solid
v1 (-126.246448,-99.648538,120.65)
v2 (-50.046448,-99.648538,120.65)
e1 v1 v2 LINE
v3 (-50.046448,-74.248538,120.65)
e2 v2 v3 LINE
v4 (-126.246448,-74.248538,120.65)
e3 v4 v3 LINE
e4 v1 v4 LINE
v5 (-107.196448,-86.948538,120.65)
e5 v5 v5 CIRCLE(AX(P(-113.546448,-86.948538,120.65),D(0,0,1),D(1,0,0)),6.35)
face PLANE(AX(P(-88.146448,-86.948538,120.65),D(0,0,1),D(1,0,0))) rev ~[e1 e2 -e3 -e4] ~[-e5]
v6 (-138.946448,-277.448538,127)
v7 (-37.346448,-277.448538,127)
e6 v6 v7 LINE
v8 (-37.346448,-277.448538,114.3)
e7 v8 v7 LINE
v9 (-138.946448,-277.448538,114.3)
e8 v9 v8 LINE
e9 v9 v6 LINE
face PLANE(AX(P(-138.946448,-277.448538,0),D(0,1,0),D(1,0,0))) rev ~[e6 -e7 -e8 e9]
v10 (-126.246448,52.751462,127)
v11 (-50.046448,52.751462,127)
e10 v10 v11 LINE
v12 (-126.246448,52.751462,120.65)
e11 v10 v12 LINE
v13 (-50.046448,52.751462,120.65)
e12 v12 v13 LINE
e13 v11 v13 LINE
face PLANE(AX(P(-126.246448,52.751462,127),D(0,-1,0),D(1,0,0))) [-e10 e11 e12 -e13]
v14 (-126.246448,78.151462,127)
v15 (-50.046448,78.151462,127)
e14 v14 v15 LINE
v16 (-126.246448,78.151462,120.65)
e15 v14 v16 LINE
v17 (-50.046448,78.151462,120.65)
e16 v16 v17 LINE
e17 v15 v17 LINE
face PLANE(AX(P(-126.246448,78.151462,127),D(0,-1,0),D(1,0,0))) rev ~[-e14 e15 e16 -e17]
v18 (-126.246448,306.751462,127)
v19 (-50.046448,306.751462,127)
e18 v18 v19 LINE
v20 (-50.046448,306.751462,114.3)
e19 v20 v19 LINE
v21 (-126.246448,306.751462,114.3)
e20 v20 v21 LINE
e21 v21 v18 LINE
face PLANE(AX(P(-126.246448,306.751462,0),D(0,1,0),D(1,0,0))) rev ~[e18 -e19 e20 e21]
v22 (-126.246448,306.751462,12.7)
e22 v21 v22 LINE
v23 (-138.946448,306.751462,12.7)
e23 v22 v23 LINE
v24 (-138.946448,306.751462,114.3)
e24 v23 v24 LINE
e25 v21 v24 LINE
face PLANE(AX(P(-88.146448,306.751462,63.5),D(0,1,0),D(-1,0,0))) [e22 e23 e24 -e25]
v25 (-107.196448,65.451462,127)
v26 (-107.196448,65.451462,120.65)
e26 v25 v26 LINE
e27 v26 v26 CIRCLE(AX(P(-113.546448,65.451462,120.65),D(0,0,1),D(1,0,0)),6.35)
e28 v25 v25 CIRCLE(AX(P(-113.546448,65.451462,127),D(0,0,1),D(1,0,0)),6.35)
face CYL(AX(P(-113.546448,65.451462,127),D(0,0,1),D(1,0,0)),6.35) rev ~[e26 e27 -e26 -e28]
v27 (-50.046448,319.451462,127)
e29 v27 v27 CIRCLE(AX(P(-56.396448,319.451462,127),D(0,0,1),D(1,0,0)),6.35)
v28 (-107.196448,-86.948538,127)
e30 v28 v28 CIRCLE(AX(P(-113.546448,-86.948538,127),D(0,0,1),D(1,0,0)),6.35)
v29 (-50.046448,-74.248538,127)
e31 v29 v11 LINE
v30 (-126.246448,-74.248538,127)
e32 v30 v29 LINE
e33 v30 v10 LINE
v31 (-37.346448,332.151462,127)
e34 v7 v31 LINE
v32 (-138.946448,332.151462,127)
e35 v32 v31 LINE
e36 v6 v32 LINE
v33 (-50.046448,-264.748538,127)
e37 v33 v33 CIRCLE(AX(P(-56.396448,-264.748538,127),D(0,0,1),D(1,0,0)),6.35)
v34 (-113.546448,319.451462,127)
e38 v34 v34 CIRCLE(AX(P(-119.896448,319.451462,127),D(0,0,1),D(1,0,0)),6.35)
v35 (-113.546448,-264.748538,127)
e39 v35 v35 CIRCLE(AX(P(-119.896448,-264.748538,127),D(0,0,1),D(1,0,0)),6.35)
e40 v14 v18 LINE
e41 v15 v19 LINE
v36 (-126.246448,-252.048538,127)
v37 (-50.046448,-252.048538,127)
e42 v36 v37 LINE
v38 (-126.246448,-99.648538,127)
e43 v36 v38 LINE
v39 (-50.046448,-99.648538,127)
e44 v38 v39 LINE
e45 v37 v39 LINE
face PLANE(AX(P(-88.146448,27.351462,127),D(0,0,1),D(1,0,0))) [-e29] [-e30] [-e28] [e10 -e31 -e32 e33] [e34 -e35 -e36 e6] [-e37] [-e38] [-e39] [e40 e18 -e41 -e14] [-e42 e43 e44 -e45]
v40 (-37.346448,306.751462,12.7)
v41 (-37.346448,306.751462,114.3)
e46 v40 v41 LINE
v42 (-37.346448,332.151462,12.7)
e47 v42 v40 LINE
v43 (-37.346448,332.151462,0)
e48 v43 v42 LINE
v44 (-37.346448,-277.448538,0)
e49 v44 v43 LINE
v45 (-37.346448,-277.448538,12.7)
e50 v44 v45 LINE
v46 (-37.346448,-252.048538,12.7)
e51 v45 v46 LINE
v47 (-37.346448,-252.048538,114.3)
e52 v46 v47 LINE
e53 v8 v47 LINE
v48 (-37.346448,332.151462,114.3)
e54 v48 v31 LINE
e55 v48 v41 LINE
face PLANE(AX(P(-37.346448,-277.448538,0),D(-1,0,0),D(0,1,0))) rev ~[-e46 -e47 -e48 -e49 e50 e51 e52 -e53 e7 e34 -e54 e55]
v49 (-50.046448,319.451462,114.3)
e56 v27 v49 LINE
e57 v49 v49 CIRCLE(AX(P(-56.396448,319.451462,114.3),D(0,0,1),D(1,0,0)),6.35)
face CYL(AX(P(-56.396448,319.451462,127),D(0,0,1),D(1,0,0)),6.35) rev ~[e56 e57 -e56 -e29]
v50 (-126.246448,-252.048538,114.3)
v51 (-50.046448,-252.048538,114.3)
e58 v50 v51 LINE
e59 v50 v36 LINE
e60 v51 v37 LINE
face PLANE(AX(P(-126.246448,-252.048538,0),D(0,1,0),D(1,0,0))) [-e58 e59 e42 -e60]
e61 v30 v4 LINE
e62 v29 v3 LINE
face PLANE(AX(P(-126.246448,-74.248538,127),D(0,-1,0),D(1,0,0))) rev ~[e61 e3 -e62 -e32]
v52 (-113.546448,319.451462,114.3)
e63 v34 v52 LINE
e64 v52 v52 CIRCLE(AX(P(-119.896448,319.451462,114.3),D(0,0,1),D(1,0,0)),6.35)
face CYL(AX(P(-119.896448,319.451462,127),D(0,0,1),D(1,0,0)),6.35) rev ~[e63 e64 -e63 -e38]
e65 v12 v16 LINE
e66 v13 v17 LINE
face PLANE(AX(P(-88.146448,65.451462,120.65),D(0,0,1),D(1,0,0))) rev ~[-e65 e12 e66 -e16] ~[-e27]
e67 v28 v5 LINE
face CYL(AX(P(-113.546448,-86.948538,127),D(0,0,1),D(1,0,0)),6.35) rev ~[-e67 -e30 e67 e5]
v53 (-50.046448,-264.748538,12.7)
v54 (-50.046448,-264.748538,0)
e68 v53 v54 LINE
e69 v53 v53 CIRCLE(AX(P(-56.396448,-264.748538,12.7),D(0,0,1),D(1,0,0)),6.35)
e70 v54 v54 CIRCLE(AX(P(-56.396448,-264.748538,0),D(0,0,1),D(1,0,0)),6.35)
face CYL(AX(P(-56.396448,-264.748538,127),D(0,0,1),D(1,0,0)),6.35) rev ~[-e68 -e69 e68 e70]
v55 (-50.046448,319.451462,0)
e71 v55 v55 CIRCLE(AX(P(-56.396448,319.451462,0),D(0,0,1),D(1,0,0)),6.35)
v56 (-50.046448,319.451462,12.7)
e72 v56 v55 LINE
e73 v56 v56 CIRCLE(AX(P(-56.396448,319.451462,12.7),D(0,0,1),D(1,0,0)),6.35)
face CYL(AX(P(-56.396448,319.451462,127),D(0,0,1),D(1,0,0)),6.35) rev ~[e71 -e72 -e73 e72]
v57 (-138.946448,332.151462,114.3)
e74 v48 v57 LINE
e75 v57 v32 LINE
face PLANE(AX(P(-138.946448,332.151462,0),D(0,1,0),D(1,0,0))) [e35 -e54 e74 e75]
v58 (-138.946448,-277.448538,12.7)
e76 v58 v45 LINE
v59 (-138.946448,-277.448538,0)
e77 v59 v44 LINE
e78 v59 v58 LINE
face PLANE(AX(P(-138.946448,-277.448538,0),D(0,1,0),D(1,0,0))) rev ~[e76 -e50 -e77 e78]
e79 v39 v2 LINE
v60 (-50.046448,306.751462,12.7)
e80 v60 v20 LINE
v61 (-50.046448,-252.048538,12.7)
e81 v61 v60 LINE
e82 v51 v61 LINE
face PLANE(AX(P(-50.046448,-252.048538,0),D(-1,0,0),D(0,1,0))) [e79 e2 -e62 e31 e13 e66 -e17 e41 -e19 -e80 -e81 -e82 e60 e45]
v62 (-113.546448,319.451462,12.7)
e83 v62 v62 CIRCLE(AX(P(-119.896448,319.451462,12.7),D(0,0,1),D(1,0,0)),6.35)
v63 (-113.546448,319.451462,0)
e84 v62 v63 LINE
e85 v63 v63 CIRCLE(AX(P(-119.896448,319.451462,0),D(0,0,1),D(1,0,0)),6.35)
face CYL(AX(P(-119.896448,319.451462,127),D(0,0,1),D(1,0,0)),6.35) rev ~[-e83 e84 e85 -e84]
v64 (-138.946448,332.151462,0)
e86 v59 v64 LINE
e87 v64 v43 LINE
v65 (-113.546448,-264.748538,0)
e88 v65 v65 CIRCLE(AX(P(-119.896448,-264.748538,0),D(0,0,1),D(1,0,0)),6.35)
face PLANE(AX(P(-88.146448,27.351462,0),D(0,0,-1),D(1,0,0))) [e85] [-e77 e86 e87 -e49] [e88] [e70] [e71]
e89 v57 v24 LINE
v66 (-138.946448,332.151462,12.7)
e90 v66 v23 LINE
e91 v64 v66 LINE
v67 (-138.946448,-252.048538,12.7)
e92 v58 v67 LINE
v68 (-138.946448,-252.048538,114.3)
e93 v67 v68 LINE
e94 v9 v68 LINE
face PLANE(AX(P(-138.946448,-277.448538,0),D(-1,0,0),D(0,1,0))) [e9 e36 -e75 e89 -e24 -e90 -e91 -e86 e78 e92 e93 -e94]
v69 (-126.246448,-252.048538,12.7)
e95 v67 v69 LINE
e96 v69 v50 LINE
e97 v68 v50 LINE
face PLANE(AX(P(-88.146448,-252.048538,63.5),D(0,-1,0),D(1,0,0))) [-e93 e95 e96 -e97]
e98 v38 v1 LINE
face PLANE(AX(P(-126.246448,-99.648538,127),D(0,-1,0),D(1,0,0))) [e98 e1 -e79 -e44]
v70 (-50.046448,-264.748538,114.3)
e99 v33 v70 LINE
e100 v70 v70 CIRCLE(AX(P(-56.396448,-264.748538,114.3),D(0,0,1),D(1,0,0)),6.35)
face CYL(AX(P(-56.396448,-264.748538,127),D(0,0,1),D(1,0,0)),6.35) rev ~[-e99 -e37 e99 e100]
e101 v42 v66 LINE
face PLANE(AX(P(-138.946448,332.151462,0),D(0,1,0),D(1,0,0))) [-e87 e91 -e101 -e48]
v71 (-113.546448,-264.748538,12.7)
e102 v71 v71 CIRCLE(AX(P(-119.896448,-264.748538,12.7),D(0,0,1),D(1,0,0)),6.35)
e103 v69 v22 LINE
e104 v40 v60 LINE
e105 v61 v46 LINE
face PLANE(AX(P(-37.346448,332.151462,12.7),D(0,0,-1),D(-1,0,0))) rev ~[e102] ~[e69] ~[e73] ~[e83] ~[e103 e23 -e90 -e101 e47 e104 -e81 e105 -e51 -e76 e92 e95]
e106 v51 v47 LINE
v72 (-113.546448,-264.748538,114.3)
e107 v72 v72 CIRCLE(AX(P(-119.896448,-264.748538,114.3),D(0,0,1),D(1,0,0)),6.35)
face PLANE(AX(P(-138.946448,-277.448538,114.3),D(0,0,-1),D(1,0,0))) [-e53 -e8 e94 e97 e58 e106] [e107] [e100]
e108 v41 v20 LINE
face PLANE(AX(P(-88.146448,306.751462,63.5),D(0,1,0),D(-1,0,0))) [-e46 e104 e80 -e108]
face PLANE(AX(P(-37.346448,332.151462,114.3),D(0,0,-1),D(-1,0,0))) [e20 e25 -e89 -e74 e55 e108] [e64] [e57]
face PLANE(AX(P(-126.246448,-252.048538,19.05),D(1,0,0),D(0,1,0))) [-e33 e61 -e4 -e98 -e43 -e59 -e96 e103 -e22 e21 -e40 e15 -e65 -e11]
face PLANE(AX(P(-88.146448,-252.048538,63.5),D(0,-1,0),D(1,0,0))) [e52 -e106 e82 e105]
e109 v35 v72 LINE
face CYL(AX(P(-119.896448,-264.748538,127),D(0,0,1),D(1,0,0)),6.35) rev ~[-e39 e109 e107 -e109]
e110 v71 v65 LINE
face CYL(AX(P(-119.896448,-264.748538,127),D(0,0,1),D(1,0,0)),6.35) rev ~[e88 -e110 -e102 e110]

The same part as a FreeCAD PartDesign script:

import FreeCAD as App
import Part
import Sketcher
Q = App.Units.Quantity

doc = App.newDocument("Part")
body = doc.addObject("PartDesign::Body", "Body")

sketch1 = body.newObject("Sketcher::SketchObject", "Sketch")
sketch1.AttachmentSupport = (doc.getObject("XY_Plane"), [""])
sketch1.MapMode = "FlatFace"
sketch1.addGeometry([
    Part.LineSegment(App.Vector(-139, 332, 0), App.Vector(-139, -277, 0)),
    Part.LineSegment(App.Vector(-139, -277, 0), App.Vector(-37, -277, 0)),
    Part.LineSegment(App.Vector(-37, -277, 0), App.Vector(-37, 332, 0)),
    Part.LineSegment(App.Vector(-37, 332, 0), App.Vector(-139, 332, 0)),
    Part.LineSegment(App.Vector(-50, -252, 0), App.Vector(-126, -252, 0)),
    Part.LineSegment(App.Vector(-126, -252, 0), App.Vector(-126, 307, 0)),
    Part.LineSegment(App.Vector(-126, 307, 0), App.Vector(-50, 307, 0)),
    Part.LineSegment(App.Vector(-50, 307, 0), App.Vector(-50, -252, 0)),
], False)
sketch1.addConstraint([
    Sketcher.Constraint("Coincident", 0, 2, 1, 1),
    Sketcher.Constraint("Coincident", 1, 2, 2, 1),
    Sketcher.Constraint("Coincident", 2, 2, 3, 1),
    Sketcher.Constraint("Coincident", 3, 2, 0, 1),
    Sketcher.Constraint("Coincident", 4, 2, 5, 1),
    Sketcher.Constraint("Coincident", 5, 2, 6, 1),
    Sketcher.Constraint("Coincident", 6, 2, 7, 1),
    Sketcher.Constraint("Coincident", 7, 2, 4, 1),
    Sketcher.Constraint("Vertical", 0),
    Sketcher.Constraint("Horizontal", 1),
    Sketcher.Constraint("Vertical", 2),
    Sketcher.Constraint("Horizontal", 3),
    Sketcher.Constraint("Horizontal", 4),
    Sketcher.Constraint("Vertical", 5),
    Sketcher.Constraint("Horizontal", 6),
    Sketcher.Constraint("Vertical", 7),
    Sketcher.Constraint("DistanceX", 1, 1, 1, 2, Q("4 in")),
    Sketcher.Constraint("DistanceX", 4, 2, 4, 1, Q("3 in")),
    Sketcher.Constraint("DistanceY", 0, 2, 0, 1, Q("24 in")),
    Sketcher.Constraint("DistanceY", 5, 1, 5, 2, Q("22 in")),
    Sketcher.Constraint("DistanceY", 0, 2, 4, 2, Q("1 in")),
    Sketcher.Constraint("DistanceX", 0, 2, 4, 2, Q("0.5 in")),
    Sketcher.Constraint("DistanceX", 0, 2, -1, 1, 138.946448),
    Sketcher.Constraint("DistanceY", 0, 2, -1, 1, 277.448538),
])
pad1 = body.newObject("PartDesign::Pad", "Pad")
pad1.Profile = sketch1
pad1.Length = Q("5 in")

sketch2 = body.newObject("Sketcher::SketchObject", "Sketch001")
sketch2.AttachmentSupport = (doc.getObject("XY_Plane"), [""])
sketch2.MapMode = "FlatFace"
sketch2.addGeometry([
    Part.LineSegment(App.Vector(-126, -252, 0), App.Vector(-126, 307, 0)),
    Part.LineSegment(App.Vector(-126, 307, 0), App.Vector(-50, 307, 0)),
    Part.LineSegment(App.Vector(-50, 307, 0), App.Vector(-50, -252, 0)),
    Part.LineSegment(App.Vector(-50, -252, 0), App.Vector(-126, -252, 0)),
], False)
sketch2.addConstraint([
    Sketcher.Constraint("Coincident", 0, 2, 1, 1),
    Sketcher.Constraint("Coincident", 1, 2, 2, 1),
    Sketcher.Constraint("Coincident", 2, 2, 3, 1),
    Sketcher.Constraint("Coincident", 3, 2, 0, 1),
    Sketcher.Constraint("Vertical", 0),
    Sketcher.Constraint("Horizontal", 1),
    Sketcher.Constraint("Vertical", 2),
    Sketcher.Constraint("Horizontal", 3),
    Sketcher.Constraint("DistanceX", 1, 1, 1, 2, Q("3 in")),
    Sketcher.Constraint("DistanceY", 0, 1, 0, 2, Q("22 in")),
    Sketcher.Constraint("DistanceX", 0, 2, -1, 1, 126.246448),
    Sketcher.Constraint("DistanceY", -1, 1, 0, 2, 306.751462),
])
pad2 = body.newObject("PartDesign::Pad", "Pad001")
pad2.Profile = sketch2
pad2.Length = Q("0.75 in")

sketch3 = body.newObject("Sketcher::SketchObject", "Sketch002")
sketch3.AttachmentSupport = (doc.getObject("XY_Plane"), [""])
sketch3.MapMode = "FlatFace"
sketch3.AttachmentOffset = App.Placement(App.Vector(0, 0, 5 * 25.4), App.Rotation())
sketch3.addGeometry([
    Part.LineSegment(App.Vector(-126, 78, 0), App.Vector(-126, 53, 0)),
    Part.LineSegment(App.Vector(-126, 53, 0), App.Vector(-50, 53, 0)),
    Part.LineSegment(App.Vector(-50, 53, 0), App.Vector(-50, 78, 0)),
    Part.LineSegment(App.Vector(-50, 78, 0), App.Vector(-126, 78, 0)),
    Part.LineSegment(App.Vector(-126, -74, 0), App.Vector(-126, -100, 0)),
    Part.LineSegment(App.Vector(-126, -100, 0), App.Vector(-50, -100, 0)),
    Part.LineSegment(App.Vector(-50, -100, 0), App.Vector(-50, -74, 0)),
    Part.LineSegment(App.Vector(-50, -74, 0), App.Vector(-126, -74, 0)),
], False)
sketch3.addConstraint([
    Sketcher.Constraint("Coincident", 0, 2, 1, 1),
    Sketcher.Constraint("Coincident", 1, 2, 2, 1),
    Sketcher.Constraint("Coincident", 2, 2, 3, 1),
    Sketcher.Constraint("Coincident", 3, 2, 0, 1),
    Sketcher.Constraint("Coincident", 4, 2, 5, 1),
    Sketcher.Constraint("Coincident", 5, 2, 6, 1),
    Sketcher.Constraint("Coincident", 6, 2, 7, 1),
    Sketcher.Constraint("Coincident", 7, 2, 4, 1),
    Sketcher.Constraint("Vertical", 0),
    Sketcher.Constraint("Horizontal", 1),
    Sketcher.Constraint("Vertical", 2),
    Sketcher.Constraint("Horizontal", 3),
    Sketcher.Constraint("Vertical", 4),
    Sketcher.Constraint("Horizontal", 5),
    Sketcher.Constraint("Vertical", 6),
    Sketcher.Constraint("Horizontal", 7),
    Sketcher.Constraint("Vertical", 3, 2, 4, 2),
    Sketcher.Constraint("Vertical", 2, 2, 5, 2),
    Sketcher.Constraint("Equal", 2, 4),
    Sketcher.Constraint("DistanceX", 1, 1, 1, 2, Q("3 in")),
    Sketcher.Constraint("DistanceY", 0, 2, 0, 1, Q("1 in")),
    Sketcher.Constraint("DistanceY", 4, 2, 0, 2, Q("6 in")),
    Sketcher.Constraint("DistanceX", 0, 2, -1, 1, 126.246448),
    Sketcher.Constraint("DistanceY", -1, 1, 0, 2, 52.751462),
])
pad3 = body.newObject("PartDesign::Pad", "Pad002")
pad3.Profile = sketch3
pad3.Length = Q("0.25 in")
pad3.Reversed = True

sketch4 = body.newObject("Sketcher::SketchObject", "Sketch003")
sketch4.AttachmentSupport = (doc.getObject("XZ_Plane"), [""])
sketch4.MapMode = "FlatFace"
sketch4.AttachmentOffset = App.Placement(App.Vector(0, 0, 277.448538), App.Rotation())
sketch4.addGeometry([
    Part.LineSegment(App.Vector(-139, 114, 0), App.Vector(-139, 13, 0)),
    Part.LineSegment(App.Vector(-139, 13, 0), App.Vector(-37, 13, 0)),
    Part.LineSegment(App.Vector(-37, 13, 0), App.Vector(-37, 114, 0)),
    Part.LineSegment(App.Vector(-37, 114, 0), App.Vector(-139, 114, 0)),
], False)
sketch4.addConstraint([
    Sketcher.Constraint("Coincident", 0, 2, 1, 1),
    Sketcher.Constraint("Coincident", 1, 2, 2, 1),
    Sketcher.Constraint("Coincident", 2, 2, 3, 1),
    Sketcher.Constraint("Coincident", 3, 2, 0, 1),
    Sketcher.Constraint("Vertical", 0),
    Sketcher.Constraint("Horizontal", 1),
    Sketcher.Constraint("Vertical", 2),
    Sketcher.Constraint("Horizontal", 3),
    Sketcher.Constraint("Equal", 3, 0),
    Sketcher.Constraint("DistanceX", 1, 1, 1, 2, Q("4 in")),
    Sketcher.Constraint("DistanceY", -1, 1, 0, 2, Q("0.5 in")),
    Sketcher.Constraint("DistanceX", 0, 2, -1, 1, 138.946448),
])
pocket1 = body.newObject("PartDesign::Pocket", "Pocket")
pocket1.Profile = sketch4
pocket1.Length = Q("1 in")

sketch5 = body.newObject("Sketcher::SketchObject", "Sketch004")
sketch5.AttachmentSupport = (doc.getObject("XZ_Plane"), [""])
sketch5.MapMode = "FlatFace"
sketch5.AttachmentOffset = App.Placement(App.Vector(0, 0, -332.151462), App.Rotation())
sketch5.addGeometry([
    Part.LineSegment(App.Vector(-37, 114, 0), App.Vector(-37, 13, 0)),
    Part.LineSegment(App.Vector(-37, 13, 0), App.Vector(-139, 13, 0)),
    Part.LineSegment(App.Vector(-139, 13, 0), App.Vector(-139, 114, 0)),
    Part.LineSegment(App.Vector(-139, 114, 0), App.Vector(-37, 114, 0)),
], False)
sketch5.addConstraint([
    Sketcher.Constraint("Coincident", 0, 2, 1, 1),
    Sketcher.Constraint("Coincident", 1, 2, 2, 1),
    Sketcher.Constraint("Coincident", 2, 2, 3, 1),
    Sketcher.Constraint("Coincident", 3, 2, 0, 1),
    Sketcher.Constraint("Vertical", 0),
    Sketcher.Constraint("Horizontal", 1),
    Sketcher.Constraint("Vertical", 2),
    Sketcher.Constraint("Horizontal", 3),
    Sketcher.Constraint("Equal", 3, 0),
    Sketcher.Constraint("DistanceX", 1, 2, 1, 1, Q("4 in")),
    Sketcher.Constraint("DistanceY", -1, 1, 0, 2, Q("0.5 in")),
    Sketcher.Constraint("DistanceX", 0, 2, -1, 1, 37.346448),
])
pocket2 = body.newObject("PartDesign::Pocket", "Pocket001")
pocket2.Profile = sketch5
pocket2.Length = Q("1 in")
pocket2.Reversed = True

sketch6 = body.newObject("Sketcher::SketchObject", "Sketch005")
sketch6.AttachmentSupport = (doc.getObject("XY_Plane"), [""])
sketch6.MapMode = "FlatFace"
sketch6.AttachmentOffset = App.Placement(App.Vector(0, 0, 0.75 * 25.4), App.Rotation())
sketch6.addGeometry([
    Part.LineSegment(App.Vector(-126, 307, 0), App.Vector(-126, -252, 0)),
    Part.LineSegment(App.Vector(-126, -252, 0), App.Vector(-50, -252, 0)),
    Part.LineSegment(App.Vector(-50, -252, 0), App.Vector(-50, 307, 0)),
    Part.LineSegment(App.Vector(-50, 307, 0), App.Vector(-126, 307, 0)),
], False)
sketch6.addConstraint([
    Sketcher.Constraint("Coincident", 0, 2, 1, 1),
    Sketcher.Constraint("Coincident", 1, 2, 2, 1),
    Sketcher.Constraint("Coincident", 2, 2, 3, 1),
    Sketcher.Constraint("Coincident", 3, 2, 0, 1),
    Sketcher.Constraint("Vertical", 0),
    Sketcher.Constraint("Horizontal", 1),
    Sketcher.Constraint("Vertical", 2),
    Sketcher.Constraint("Horizontal", 3),
    Sketcher.Constraint("DistanceX", 1, 1, 1, 2, Q("3 in")),
    Sketcher.Constraint("DistanceY", 0, 2, 0, 1, Q("22 in")),
    Sketcher.Constraint("DistanceX", 0, 2, -1, 1, 126.246448),
    Sketcher.Constraint("DistanceY", 0, 2, -1, 1, 252.048538),
])
pocket3 = body.newObject("PartDesign::Pocket", "Pocket002")
pocket3.Profile = sketch6
pocket3.Length = Q("0.25 in")

sketch7 = body.newObject("Sketcher::SketchObject", "Sketch006")
sketch7.AttachmentSupport = (doc.getObject("XY_Plane"), [""])
sketch7.MapMode = "FlatFace"
sketch7.AttachmentOffset = App.Placement(App.Vector(0, 0, 5 * 25.4), App.Rotation())
sketch7.addGeometry([
    Part.Circle(App.Vector(-114, 65, 0), App.Vector(0, 0, 1), 6),
    Part.Circle(App.Vector(-114, -87, 0), App.Vector(0, 0, 1), 6),
], False)
sketch7.addConstraint([
    Sketcher.Constraint("Equal", 0, 1),
    Sketcher.Constraint("Vertical", 0, 3, 1, 3),
    Sketcher.Constraint("Diameter", 0, Q("0.5 in")),
    Sketcher.Constraint("DistanceY", 1, 3, 0, 3, Q("6 in")),
    Sketcher.Constraint("DistanceX", 0, 3, -1, 1, 113.546448),
    Sketcher.Constraint("DistanceY", 1, 3, -1, 1, 86.948538),
])
pocket4 = body.newObject("PartDesign::Pocket", "Pocket003")
pocket4.Profile = sketch7
pocket4.Length = Q("0.25 in")

sketch8 = body.newObject("Sketcher::SketchObject", "Sketch007")
sketch8.AttachmentSupport = (doc.getObject("XY_Plane"), [""])
sketch8.MapMode = "FlatFace"
sketch8.AttachmentOffset = App.Placement(App.Vector(0, 0, 5 * 25.4), App.Rotation())
sketch8.addGeometry([
    Part.Circle(App.Vector(-120, -265, 0), App.Vector(0, 0, 1), 6),
    Part.Circle(App.Vector(-56, -265, 0), App.Vector(0, 0, 1), 6),
    Part.Circle(App.Vector(-120, 319, 0), App.Vector(0, 0, 1), 6),
    Part.Circle(App.Vector(-56, 319, 0), App.Vector(0, 0, 1), 6),
], False)
sketch8.addConstraint([
    Sketcher.Constraint("Equal", 0, 1),
    Sketcher.Constraint("Equal", 1, 2),
    Sketcher.Constraint("Equal", 2, 3),
    Sketcher.Constraint("Horizontal", 0, 3, 1, 3),
    Sketcher.Constraint("Horizontal", 2, 3, 3, 3),
    Sketcher.Constraint("Vertical", 0, 3, 2, 3),
    Sketcher.Constraint("Vertical", 1, 3, 3, 3),
    Sketcher.Constraint("Diameter", 0, Q("0.5 in")),
    Sketcher.Constraint("DistanceY", 0, 3, 2, 3, Q("23 in")),
    Sketcher.Constraint("DistanceX", 0, 3, 1, 3, Q("2.5 in")),
    Sketcher.Constraint("DistanceX", 0, 3, -1, 1, 119.896448),
    Sketcher.Constraint("DistanceY", 0, 3, -1, 1, 264.748538),
])
pocket5 = body.newObject("PartDesign::Pocket", "Pocket004")
pocket5.Profile = sketch8
pocket5.Length = Q("0.5 in")

sketch9 = body.newObject("Sketcher::SketchObject", "Sketch008")
sketch9.AttachmentSupport = (doc.getObject("XY_Plane"), [""])
sketch9.MapMode = "FlatFace"
sketch9.AttachmentOffset = App.Placement(App.Vector(0, 0, 5 * 25.4), App.Rotation())
sketch9.addGeometry([
    Part.Circle(App.Vector(-120, 319, 0), App.Vector(0, 0, 1), 6),
    Part.Circle(App.Vector(-56, 319, 0), App.Vector(0, 0, 1), 6),
    Part.Circle(App.Vector(-120, -265, 0), App.Vector(0, 0, 1), 6),
    Part.Circle(App.Vector(-56, -265, 0), App.Vector(0, 0, 1), 6),
], False)
sketch9.addConstraint([
    Sketcher.Constraint("Equal", 0, 1),
    Sketcher.Constraint("Equal", 1, 2),
    Sketcher.Constraint("Equal", 2, 3),
    Sketcher.Constraint("Horizontal", 0, 3, 1, 3),
    Sketcher.Constraint("Horizontal", 2, 3, 3, 3),
    Sketcher.Constraint("Vertical", 0, 3, 2, 3),
    Sketcher.Constraint("Vertical", 1, 3, 3, 3),
    Sketcher.Constraint("Diameter", 0, Q("0.5 in")),
    Sketcher.Constraint("DistanceY", 2, 3, 0, 3, Q("23 in")),
    Sketcher.Constraint("DistanceX", 0, 3, 1, 3, Q("2.5 in")),
    Sketcher.Constraint("DistanceX", 0, 3, -1, 1, 119.896448),
    Sketcher.Constraint("DistanceY", -1, 1, 0, 3, 319.451462),
])
pocket6 = body.newObject("PartDesign::Pocket", "Pocket005")
pocket6.Profile = sketch9
pocket6.Length = Q("5 in")

doc.recompute()
